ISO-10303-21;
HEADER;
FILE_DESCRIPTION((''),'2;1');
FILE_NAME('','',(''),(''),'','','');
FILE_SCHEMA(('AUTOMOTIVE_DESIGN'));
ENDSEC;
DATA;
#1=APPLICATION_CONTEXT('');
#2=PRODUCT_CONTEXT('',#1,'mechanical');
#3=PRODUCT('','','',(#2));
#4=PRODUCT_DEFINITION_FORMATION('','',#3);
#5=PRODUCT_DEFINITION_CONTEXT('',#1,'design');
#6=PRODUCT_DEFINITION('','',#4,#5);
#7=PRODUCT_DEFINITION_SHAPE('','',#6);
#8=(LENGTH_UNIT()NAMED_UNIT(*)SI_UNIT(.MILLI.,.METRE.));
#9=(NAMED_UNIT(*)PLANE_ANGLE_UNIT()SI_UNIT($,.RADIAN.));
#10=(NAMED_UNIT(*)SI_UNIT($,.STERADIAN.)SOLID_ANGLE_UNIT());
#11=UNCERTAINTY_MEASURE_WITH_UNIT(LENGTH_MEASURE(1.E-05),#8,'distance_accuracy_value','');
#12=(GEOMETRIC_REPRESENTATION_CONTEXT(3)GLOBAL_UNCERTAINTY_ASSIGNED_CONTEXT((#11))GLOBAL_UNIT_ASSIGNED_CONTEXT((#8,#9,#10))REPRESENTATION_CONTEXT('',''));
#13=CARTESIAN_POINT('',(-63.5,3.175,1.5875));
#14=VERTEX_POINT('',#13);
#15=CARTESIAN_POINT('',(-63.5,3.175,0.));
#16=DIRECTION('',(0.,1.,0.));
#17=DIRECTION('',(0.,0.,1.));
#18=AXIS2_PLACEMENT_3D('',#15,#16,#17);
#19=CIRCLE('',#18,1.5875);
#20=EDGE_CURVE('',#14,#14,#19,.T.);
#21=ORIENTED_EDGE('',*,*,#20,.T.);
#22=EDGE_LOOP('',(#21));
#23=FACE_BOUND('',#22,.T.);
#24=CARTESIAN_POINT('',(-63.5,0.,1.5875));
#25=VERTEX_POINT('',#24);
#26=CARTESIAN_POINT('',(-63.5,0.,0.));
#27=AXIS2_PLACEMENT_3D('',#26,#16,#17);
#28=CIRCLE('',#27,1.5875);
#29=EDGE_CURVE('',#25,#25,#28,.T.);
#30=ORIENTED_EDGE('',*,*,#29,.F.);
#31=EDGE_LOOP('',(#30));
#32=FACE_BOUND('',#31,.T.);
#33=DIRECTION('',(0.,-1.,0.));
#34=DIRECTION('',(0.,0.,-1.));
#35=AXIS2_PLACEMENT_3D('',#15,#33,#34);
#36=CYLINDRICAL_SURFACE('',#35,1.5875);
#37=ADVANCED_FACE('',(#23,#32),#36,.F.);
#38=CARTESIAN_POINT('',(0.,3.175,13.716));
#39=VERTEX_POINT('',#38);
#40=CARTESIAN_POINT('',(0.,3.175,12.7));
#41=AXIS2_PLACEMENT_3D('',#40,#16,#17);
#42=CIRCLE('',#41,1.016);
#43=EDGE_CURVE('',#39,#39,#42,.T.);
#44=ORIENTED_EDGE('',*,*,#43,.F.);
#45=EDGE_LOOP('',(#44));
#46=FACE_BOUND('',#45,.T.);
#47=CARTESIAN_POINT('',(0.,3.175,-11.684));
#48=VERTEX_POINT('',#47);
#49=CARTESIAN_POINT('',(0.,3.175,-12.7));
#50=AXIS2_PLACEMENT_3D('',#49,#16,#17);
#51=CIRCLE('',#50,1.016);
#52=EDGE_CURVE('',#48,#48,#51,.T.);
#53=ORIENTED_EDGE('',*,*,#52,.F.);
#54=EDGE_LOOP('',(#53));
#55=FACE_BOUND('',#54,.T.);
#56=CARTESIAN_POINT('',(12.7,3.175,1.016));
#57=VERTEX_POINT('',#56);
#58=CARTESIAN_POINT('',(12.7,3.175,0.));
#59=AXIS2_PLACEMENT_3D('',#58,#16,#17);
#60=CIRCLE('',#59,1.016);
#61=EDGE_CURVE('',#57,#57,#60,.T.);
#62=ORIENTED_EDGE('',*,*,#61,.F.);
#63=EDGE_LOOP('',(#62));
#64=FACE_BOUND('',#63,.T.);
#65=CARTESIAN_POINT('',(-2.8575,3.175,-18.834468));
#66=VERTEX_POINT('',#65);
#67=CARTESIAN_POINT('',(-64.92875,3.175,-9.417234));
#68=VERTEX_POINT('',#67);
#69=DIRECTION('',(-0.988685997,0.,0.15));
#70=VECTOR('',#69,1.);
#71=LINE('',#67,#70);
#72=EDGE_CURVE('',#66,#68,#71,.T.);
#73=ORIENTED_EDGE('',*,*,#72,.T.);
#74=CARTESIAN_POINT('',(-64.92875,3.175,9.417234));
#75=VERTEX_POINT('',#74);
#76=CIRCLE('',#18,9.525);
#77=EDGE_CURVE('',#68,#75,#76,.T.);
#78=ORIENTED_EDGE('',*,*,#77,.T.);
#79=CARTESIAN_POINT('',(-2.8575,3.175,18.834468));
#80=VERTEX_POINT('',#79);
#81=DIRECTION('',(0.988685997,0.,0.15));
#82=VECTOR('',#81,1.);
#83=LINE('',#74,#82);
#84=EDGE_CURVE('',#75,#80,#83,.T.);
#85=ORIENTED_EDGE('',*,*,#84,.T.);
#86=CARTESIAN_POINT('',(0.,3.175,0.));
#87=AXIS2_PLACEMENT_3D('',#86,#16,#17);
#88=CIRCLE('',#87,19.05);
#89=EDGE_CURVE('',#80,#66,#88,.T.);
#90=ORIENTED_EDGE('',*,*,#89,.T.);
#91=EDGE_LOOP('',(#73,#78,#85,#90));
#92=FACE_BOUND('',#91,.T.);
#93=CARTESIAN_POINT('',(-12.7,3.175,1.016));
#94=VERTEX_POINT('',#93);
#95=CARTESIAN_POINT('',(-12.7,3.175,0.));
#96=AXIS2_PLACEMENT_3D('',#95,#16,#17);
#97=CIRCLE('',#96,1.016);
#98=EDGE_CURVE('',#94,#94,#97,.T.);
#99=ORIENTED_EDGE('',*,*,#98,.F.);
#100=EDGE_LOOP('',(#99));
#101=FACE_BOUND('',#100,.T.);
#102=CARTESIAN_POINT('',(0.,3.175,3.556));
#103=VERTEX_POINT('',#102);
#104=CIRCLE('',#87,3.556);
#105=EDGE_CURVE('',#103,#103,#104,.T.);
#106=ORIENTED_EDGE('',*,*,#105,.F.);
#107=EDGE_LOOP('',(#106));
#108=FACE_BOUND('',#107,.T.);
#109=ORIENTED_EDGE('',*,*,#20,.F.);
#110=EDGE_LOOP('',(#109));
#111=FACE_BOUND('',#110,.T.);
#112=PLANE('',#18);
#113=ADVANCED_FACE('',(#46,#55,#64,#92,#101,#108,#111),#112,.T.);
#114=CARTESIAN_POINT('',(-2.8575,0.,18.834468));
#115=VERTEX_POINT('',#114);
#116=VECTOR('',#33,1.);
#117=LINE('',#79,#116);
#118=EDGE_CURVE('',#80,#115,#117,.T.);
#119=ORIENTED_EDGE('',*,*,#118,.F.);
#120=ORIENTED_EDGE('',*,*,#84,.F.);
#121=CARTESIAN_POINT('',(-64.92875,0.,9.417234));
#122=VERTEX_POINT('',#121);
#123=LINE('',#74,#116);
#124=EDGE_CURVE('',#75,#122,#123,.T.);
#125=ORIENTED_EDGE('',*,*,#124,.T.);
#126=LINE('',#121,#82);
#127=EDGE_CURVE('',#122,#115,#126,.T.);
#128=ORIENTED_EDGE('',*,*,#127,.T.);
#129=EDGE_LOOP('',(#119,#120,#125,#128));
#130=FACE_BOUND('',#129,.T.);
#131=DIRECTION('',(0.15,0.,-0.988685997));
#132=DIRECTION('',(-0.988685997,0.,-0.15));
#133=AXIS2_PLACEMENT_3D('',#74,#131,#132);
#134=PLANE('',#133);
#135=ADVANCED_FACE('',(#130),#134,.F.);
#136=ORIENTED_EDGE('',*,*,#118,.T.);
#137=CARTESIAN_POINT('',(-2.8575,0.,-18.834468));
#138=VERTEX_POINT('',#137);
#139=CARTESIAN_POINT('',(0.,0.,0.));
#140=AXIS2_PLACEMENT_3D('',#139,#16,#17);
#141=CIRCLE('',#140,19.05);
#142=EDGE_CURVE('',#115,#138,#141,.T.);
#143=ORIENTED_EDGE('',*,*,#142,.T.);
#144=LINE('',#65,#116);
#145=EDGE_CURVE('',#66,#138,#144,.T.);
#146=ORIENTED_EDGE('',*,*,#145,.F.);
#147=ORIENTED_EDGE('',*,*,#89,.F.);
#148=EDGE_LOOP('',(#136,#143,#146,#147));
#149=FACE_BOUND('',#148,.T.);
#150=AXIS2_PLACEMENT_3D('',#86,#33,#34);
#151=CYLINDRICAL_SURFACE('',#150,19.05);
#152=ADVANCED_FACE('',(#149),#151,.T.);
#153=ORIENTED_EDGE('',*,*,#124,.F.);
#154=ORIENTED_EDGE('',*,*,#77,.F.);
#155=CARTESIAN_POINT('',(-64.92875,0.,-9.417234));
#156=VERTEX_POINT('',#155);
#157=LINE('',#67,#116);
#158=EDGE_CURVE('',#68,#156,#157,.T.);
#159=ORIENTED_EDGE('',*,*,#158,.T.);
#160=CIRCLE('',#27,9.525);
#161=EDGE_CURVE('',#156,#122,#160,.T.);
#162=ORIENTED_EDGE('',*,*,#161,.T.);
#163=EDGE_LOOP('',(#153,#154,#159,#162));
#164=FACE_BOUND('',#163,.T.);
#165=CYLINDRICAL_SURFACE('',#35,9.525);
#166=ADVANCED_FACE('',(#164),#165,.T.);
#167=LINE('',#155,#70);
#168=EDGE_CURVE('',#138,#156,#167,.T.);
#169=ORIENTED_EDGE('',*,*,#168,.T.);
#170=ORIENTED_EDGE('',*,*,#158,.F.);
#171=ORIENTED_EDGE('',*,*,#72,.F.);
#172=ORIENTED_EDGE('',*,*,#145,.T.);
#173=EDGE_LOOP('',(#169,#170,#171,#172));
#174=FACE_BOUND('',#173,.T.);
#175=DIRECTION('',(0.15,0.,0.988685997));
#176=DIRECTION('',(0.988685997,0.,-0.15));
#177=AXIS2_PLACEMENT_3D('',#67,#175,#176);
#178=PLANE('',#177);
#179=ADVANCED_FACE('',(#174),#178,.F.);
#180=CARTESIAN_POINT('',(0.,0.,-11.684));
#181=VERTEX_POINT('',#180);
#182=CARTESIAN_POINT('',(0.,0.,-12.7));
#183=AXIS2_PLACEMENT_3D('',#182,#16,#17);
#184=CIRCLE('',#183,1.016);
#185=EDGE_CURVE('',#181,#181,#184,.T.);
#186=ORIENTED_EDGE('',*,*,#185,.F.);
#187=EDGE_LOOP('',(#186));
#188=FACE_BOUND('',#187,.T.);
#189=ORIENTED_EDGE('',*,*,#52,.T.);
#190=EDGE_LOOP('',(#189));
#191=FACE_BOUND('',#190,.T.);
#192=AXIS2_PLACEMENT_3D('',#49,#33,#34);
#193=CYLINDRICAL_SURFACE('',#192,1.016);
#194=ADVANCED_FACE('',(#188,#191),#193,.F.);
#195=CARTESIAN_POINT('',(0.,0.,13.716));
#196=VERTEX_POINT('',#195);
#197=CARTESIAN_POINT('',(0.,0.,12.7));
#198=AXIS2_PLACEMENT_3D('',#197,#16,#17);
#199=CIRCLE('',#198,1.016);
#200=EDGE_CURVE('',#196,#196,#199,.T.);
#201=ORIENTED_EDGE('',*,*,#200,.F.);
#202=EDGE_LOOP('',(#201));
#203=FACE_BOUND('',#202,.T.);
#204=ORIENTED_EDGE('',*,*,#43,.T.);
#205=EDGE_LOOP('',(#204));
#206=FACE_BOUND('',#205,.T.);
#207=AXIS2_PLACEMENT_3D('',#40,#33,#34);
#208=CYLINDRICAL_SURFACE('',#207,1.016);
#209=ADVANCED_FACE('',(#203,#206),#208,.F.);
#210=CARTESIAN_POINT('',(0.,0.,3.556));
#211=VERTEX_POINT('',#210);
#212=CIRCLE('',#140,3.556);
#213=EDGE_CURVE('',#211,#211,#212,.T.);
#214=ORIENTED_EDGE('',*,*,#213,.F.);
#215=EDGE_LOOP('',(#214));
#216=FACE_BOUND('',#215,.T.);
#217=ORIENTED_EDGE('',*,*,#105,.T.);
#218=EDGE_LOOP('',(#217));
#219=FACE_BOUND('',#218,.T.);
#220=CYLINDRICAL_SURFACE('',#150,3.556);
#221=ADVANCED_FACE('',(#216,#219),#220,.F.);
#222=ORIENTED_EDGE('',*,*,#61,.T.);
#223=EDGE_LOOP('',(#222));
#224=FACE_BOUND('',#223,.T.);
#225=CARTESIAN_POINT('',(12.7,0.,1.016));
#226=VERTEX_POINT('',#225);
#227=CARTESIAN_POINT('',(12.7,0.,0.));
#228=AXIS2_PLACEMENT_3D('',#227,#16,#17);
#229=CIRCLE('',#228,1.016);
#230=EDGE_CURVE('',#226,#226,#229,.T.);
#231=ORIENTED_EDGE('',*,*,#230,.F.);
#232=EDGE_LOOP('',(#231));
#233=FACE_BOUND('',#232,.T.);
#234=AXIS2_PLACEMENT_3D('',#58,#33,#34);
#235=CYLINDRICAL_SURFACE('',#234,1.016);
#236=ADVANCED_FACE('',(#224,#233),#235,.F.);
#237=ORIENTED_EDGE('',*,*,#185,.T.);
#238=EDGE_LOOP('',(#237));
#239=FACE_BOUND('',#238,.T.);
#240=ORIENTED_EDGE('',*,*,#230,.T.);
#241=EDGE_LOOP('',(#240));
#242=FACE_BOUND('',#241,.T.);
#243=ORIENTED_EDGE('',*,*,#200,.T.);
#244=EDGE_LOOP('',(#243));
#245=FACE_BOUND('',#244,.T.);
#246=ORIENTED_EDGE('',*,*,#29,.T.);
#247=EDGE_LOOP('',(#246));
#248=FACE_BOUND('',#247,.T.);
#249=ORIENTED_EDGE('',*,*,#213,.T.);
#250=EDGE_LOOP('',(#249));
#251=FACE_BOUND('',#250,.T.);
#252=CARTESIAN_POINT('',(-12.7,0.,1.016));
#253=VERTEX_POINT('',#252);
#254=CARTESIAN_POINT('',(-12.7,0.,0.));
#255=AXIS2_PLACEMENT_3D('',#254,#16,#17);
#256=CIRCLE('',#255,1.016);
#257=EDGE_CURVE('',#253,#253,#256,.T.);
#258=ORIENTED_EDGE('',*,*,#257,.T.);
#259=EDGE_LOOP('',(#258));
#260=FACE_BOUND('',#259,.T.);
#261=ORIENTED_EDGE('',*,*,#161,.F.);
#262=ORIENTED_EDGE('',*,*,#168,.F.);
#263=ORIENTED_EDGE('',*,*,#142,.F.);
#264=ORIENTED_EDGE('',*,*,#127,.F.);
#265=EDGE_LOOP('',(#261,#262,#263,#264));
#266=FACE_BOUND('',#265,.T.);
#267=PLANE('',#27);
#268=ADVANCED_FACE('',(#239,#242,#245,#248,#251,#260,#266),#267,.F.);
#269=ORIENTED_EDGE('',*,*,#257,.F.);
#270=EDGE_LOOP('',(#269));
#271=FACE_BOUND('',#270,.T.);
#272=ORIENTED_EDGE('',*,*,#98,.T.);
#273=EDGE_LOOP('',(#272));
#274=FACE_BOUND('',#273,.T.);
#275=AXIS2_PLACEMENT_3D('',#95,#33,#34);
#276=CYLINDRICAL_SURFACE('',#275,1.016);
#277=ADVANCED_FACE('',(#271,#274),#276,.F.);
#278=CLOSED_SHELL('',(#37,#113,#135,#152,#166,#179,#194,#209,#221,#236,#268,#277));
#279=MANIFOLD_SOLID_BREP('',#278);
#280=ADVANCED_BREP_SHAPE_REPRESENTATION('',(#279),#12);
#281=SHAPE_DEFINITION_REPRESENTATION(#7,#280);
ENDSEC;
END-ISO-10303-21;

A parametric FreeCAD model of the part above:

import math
import FreeCAD as App
import Part
import Sketcher
Q = App.Units.Quantity

doc = App.newDocument("Part")
body = doc.addObject("PartDesign::Body", "Body")

# Sketch on XZ plane
sketch1 = doc.addObject("Sketcher::SketchObject", "Sketch")
body.addObject(sketch1)
sketch1.AttachmentSupport = (doc.XZ_Plane, [""])
sketch1.MapMode = "FlatFace"
sketch1.addGeometry(Part.LineSegment(App.Vector(-2.9, -18.8, 0), App.Vector(-64.9, -9.4, 0)), False)
sketch1.addGeometry(Part.ArcOfCircle(Part.Circle(App.Vector(-63.5, 0, 0), App.Vector(0, 0, 1), 9.5), math.radians(99), math.radians(261)), False)
sketch1.addGeometry(Part.LineSegment(App.Vector(-64.9, 9.4, 0), App.Vector(-2.9, 18.8, 0)), False)
sketch1.addGeometry(Part.ArcOfCircle(Part.Circle(App.Vector(0, 0, 0), App.Vector(0, 0, 1), 19.1), math.radians(-99), math.radians(99)), False)
sketch1.addGeometry(Part.Circle(App.Vector(0, 12.7, 0), App.Vector(0, 0, 1), 1), False)
sketch1.addGeometry(Part.Circle(App.Vector(12.7, 0, 0), App.Vector(0, 0, 1), 1), False)
sketch1.addGeometry(Part.Circle(App.Vector(0, 0, 0), App.Vector(0, 0, 1), 3.6), False)
sketch1.addGeometry(Part.Circle(App.Vector(-12.7, 0, 0), App.Vector(0, 0, 1), 1), False)
sketch1.addGeometry(Part.Circle(App.Vector(0, -12.7, 0), App.Vector(0, 0, 1), 1), False)
sketch1.addGeometry(Part.Circle(App.Vector(-63.5, 0, 0), App.Vector(0, 0, 1), 1.6), False)
sketch1.addConstraint(Sketcher.Constraint("Tangent", 0, 2, 1, 2))
sketch1.addConstraint(Sketcher.Constraint("Tangent", 1, 1, 2, 1))
sketch1.addConstraint(Sketcher.Constraint("Tangent", 2, 2, 3, 2))
sketch1.addConstraint(Sketcher.Constraint("Tangent", 3, 1, 0, 1))
sketch1.addConstraint(Sketcher.Constraint("Coincident", 3, 3, -1, 1))
sketch1.addConstraint(Sketcher.Constraint("Coincident", 6, 3, -1, 1))
sketch1.addConstraint(Sketcher.Constraint("Coincident", 9, 3, 1, 3))
sketch1.addConstraint(Sketcher.Constraint("Equal", 4, 5))
sketch1.addConstraint(Sketcher.Constraint("Equal", 5, 7))
sketch1.addConstraint(Sketcher.Constraint("Equal", 7, 8))
sketch1.addConstraint(Sketcher.Constraint("Symmetric", 5, 3, 7, 3, -1, 1))
sketch1.addConstraint(Sketcher.Constraint("Symmetric", 4, 3, 8, 3, -1, 1))
sketch1.addConstraint(Sketcher.Constraint("PointOnObject", 1, 3, -1))
sketch1.addConstraint(Sketcher.Constraint("PointOnObject", 4, 3, -2))
sketch1.addConstraint(Sketcher.Constraint("PointOnObject", 5, 3, -1))
sketch1.addConstraint(Sketcher.Constraint("Diameter", 4, Q("0.08 in")))
sketch1.addConstraint(Sketcher.Constraint("Diameter", 6, Q("0.28 in")))
sketch1.addConstraint(Sketcher.Constraint("Radius", 3, Q("0.75 in")))
sketch1.addConstraint(Sketcher.Constraint("Diameter", 9, Q("0.125 in")))
sketch1.addConstraint(Sketcher.Constraint("Radius", 1, Q("0.375 in")))
sketch1.addConstraint(Sketcher.Constraint("DistanceX", 1, 3, 5, 3, Q("3 in")))
sketch1.addConstraint(Sketcher.Constraint("DistanceX", 7, 3, 5, 3, Q("1 in")))
sketch1.addConstraint(Sketcher.Constraint("DistanceY", 8, 3, 4, 3, Q("1 in")))
pad1 = doc.addObject("PartDesign::Pad", "Pad")
body.addObject(pad1)
pad1.Profile = sketch1
pad1.Length = Q("0.125 in")
pad1.Reversed = True

doc.recompute()
